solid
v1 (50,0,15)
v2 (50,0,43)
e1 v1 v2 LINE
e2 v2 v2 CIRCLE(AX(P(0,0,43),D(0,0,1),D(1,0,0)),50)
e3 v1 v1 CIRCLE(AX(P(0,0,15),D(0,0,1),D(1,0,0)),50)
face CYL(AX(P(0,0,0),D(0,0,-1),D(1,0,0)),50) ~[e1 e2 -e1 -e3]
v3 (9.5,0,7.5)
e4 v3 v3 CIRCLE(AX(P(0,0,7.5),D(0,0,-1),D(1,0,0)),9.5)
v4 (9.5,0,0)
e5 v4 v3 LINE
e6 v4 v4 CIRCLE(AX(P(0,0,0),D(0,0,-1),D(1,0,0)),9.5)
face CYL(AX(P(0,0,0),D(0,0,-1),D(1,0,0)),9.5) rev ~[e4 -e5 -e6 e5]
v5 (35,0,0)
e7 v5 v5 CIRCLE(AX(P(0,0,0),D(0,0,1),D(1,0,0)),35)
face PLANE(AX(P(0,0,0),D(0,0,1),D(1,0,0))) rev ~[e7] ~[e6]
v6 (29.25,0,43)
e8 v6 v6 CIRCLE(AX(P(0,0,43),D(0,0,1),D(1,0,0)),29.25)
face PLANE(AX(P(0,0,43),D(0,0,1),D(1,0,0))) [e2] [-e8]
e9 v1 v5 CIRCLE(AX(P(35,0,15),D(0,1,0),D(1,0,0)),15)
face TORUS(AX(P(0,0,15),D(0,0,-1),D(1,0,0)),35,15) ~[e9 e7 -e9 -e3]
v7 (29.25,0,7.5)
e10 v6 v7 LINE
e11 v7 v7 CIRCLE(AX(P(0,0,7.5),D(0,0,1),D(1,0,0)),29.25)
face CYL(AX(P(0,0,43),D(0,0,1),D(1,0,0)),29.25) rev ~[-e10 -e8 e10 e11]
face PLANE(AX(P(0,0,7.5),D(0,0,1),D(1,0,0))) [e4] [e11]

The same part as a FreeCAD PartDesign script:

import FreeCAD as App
import Part
import Sketcher

V = App.Vector
Q = App.Units.Quantity


def edges_at(feature, points):
    """Names of the edges that pass closest to the given points."""
    edges = feature.Shape.Edges
    near = lambda p: min(range(len(edges)), key=lambda i: edges[i].distToShape(Part.Vertex(*p))[0])
    return sorted({f"Edge{near(p) + 1}" for p in points})

doc = App.newDocument("Part")
params = doc.addObject("Spreadsheet::Sheet", "Params")
for row, (alias, value) in enumerate([
    ("sketch1_diameter", "100 mm"),
    ("pad1_length", "43 mm"),
    ("sketch2_diameter", "58.5 mm"),
    ("pocket1_length", "35.5 mm"),
    ("fillet_radius", "15 mm"),
    ("sketch3_diameter", "19 mm"),
    ("pocket2_length", "8 mm"),
], start=1):
    params.set(f"A{row}", alias)
    params.set(f"B{row}", "=" + value)
    params.setAlias(f"B{row}", alias)

body = doc.addObject("PartDesign::Body", "Body")

# Sketch on XY plane
sketch1 = doc.addObject("Sketcher::SketchObject", "Sketch")
body.addObject(sketch1)
sketch1.AttachmentSupport = (doc.XY_Plane, [""])
sketch1.MapMode = "FlatFace"
sketch1.addGeometry(Part.Circle(V(0, 0, 0), V(0, 0, 1), 50), False)
sketch1.addConstraint(Sketcher.Constraint("Coincident", 0, 3, -1, 1))
sketch1.addConstraint(Sketcher.Constraint("Diameter", 0, Q("100 mm")))
sketch1.setExpression("Constraints[1]", "Params.sketch1_diameter")
pad1 = doc.addObject("PartDesign::Pad", "Pad")
body.addObject(pad1)
pad1.Profile = sketch1
pad1.setExpression("Length", "Params.pad1_length")

# Sketch on XY plane
sketch2 = doc.addObject("Sketcher::SketchObject", "Sketch001")
body.addObject(sketch2)
sketch2.AttachmentSupport = (doc.XY_Plane, [""])
sketch2.MapMode = "FlatFace"
sketch2.AttachmentOffset = App.Placement(V(0, 0, 43), App.Rotation())
sketch2.addGeometry(Part.Circle(V(0, 0, 0), V(0, 0, 1), 29.25), False)
sketch2.addConstraint(Sketcher.Constraint("Coincident", 0, 3, -1, 1))
sketch2.addConstraint(Sketcher.Constraint("Diameter", 0, Q("58.5 mm")))
sketch2.setExpression("Constraints[1]", "Params.sketch2_diameter")
pocket1 = doc.addObject("PartDesign::Pocket", "Pocket")
body.addObject(pocket1)
pocket1.Profile = sketch2
pocket1.setExpression("Length", "Params.pocket1_length")
doc.recompute()

fillet = doc.addObject("PartDesign::Fillet", "Fillet")
body.addObject(fillet)
fillet.Base = (pocket1, edges_at(pocket1, [(-50, 0, 0)]))
fillet.setExpression("Radius", "Params.fillet_radius")

# Sketch on XY plane
sketch3 = doc.addObject("Sketcher::SketchObject", "Sketch002")
body.addObject(sketch3)
sketch3.AttachmentSupport = (doc.XY_Plane, [""])
sketch3.MapMode = "FlatFace"
sketch3.addGeometry(Part.Circle(V(0, 0, 0), V(0, 0, 1), 9.5), False)
sketch3.addConstraint(Sketcher.Constraint("Coincident", 0, 3, -1, 1))
sketch3.addConstraint(Sketcher.Constraint("Diameter", 0, Q("19 mm")))
sketch3.setExpression("Constraints[1]", "Params.sketch3_diameter")
pocket2 = doc.addObject("PartDesign::Pocket", "Pocket001")
body.addObject(pocket2)
pocket2.Profile = sketch3
pocket2.setExpression("Length", "Params.pocket2_length")
pocket2.Reversed = True

doc.recompute()
